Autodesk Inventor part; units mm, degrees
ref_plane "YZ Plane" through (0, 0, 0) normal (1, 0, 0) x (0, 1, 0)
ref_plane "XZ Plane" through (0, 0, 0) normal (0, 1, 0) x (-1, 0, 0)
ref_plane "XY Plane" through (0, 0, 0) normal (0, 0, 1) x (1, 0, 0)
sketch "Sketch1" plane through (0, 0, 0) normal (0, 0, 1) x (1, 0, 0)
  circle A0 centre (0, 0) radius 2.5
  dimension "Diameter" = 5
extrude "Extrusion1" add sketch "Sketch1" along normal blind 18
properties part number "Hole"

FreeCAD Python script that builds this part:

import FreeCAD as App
import Part
import Sketcher
from FreeCAD import Vector
Q = App.Units.Quantity

doc = App.newDocument("Part")
body = doc.addObject("PartDesign::Body", "Body")

# Sketch on XY plane
sketch1 = doc.addObject("Sketcher::SketchObject", "Sketch")
body.addObject(sketch1)
sketch1.AttachmentSupport = (doc.XY_Plane, [""])
sketch1.MapMode = "FlatFace"
sketch1.addGeometry(Part.Circle(Vector(0, 0, 0), Vector(0, 0, 1), 2.5), False)
sketch1.addConstraint([
    Sketcher.Constraint("Coincident", 0, 3, -1, 1),
    Sketcher.Constraint("Diameter", 0, Q("5 mm")),
])
pad1 = doc.addObject("PartDesign::Pad", "Pad")
body.addObject(pad1)
pad1.Profile = sketch1
pad1.Length = 18

doc.recompute()
